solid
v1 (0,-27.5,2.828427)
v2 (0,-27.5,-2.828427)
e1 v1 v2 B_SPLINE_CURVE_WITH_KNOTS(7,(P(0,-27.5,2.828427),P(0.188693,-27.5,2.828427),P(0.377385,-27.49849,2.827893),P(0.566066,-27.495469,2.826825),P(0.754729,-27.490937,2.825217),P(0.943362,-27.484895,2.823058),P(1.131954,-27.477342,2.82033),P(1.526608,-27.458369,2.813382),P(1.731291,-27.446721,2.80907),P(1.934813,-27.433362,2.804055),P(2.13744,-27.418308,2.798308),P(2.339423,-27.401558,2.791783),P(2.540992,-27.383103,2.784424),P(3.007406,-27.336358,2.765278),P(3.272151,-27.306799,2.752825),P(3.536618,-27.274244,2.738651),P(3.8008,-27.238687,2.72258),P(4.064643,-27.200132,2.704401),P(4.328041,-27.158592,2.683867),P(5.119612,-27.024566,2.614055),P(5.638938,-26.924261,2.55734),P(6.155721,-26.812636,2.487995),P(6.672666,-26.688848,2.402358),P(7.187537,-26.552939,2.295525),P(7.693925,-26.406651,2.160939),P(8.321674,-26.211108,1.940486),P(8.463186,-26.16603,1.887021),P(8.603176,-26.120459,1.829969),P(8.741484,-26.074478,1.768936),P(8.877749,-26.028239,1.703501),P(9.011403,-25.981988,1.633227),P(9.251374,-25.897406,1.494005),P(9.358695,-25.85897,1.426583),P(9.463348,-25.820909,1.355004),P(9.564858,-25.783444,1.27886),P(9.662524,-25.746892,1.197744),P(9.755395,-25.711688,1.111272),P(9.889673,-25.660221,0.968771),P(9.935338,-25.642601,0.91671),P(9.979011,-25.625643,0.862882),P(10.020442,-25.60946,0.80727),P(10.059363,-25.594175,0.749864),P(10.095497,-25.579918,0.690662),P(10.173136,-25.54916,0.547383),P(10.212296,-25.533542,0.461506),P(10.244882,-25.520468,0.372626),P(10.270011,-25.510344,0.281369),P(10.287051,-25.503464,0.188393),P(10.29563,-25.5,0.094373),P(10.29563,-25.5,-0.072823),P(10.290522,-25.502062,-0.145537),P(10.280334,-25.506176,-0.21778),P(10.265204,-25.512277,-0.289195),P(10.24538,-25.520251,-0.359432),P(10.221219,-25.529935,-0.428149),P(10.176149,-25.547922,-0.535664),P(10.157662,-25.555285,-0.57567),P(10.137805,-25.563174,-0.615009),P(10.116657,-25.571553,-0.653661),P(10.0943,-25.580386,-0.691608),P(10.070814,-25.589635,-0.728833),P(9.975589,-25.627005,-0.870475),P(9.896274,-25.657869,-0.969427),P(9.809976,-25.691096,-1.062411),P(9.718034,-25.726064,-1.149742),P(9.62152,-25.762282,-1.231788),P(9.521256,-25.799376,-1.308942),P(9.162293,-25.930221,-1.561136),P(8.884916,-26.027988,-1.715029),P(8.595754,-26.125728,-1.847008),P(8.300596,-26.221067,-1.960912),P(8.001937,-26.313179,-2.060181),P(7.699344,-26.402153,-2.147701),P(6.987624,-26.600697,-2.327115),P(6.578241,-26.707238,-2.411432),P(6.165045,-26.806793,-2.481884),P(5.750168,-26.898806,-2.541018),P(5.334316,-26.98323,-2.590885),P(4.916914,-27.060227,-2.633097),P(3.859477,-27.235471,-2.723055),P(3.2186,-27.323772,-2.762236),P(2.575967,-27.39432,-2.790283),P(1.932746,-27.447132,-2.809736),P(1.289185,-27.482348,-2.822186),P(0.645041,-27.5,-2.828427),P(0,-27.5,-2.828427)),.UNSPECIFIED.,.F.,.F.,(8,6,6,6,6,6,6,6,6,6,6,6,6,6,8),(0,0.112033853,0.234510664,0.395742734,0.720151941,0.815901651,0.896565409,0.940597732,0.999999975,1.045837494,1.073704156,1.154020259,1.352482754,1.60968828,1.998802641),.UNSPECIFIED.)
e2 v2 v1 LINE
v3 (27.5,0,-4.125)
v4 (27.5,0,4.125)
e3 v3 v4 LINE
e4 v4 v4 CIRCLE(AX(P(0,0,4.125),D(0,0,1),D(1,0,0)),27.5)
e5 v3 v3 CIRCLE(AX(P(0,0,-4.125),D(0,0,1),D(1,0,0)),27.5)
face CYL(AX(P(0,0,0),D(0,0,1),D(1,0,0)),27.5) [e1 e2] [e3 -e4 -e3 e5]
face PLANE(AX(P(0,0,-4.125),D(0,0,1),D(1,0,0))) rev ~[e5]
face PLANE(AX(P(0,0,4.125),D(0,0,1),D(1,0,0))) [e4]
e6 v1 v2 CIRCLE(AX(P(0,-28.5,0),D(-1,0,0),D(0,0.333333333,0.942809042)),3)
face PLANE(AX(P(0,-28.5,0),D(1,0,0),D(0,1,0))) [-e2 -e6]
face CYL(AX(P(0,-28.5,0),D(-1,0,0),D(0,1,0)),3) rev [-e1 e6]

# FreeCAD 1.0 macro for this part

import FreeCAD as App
import Part
import Sketcher

V = App.Vector
Q = App.Units.Quantity

doc = App.newDocument("Part")
params = doc.addObject("Spreadsheet::Sheet", "Params")
for row, (alias, value) in enumerate([
    ("sketch1_diameter", "55 mm"),
    ("pad1_length", "8.25 mm"),
    ("sketch2_diameter", "6 mm"),
    ("pocket1_length", "25 mm"),
], start=1):
    params.set(f"A{row}", alias)
    params.set(f"B{row}", "=" + value)
    params.setAlias(f"B{row}", alias)

body = doc.addObject("PartDesign::Body", "Body")

# Sketch on XY plane
sketch1 = doc.addObject("Sketcher::SketchObject", "Sketch")
body.addObject(sketch1)
sketch1.AttachmentSupport = (doc.XY_Plane, [""])
sketch1.MapMode = "FlatFace"
sketch1.addGeometry(Part.Circle(V(0, 0, 0), V(0, 0, 1), 28), False)
sketch1.addConstraint([
    Sketcher.Constraint("Coincident", 0, 3, -1, 1),
    Sketcher.Constraint("Diameter", 0, Q("55 mm")),
])
sketch1.setExpression("Constraints[1]", "Params.sketch1_diameter")
pad1 = doc.addObject("PartDesign::Pad", "Pad")
body.addObject(pad1)
pad1.Profile = sketch1
pad1.setExpression("Length", "Params.pad1_length")
pad1.Midplane = True

# Sketch on YZ plane
sketch2 = doc.addObject("Sketcher::SketchObject", "Sketch001")
body.addObject(sketch2)
sketch2.AttachmentSupport = (doc.YZ_Plane, [""])
sketch2.MapMode = "FlatFace"
sketch2.addGeometry(Part.Circle(V(-28.5, 0, 0), V(0, 0, 1), 3), False)
sketch2.addConstraint([
    Sketcher.Constraint("PointOnObject", 0, 3, -1),
    Sketcher.Constraint("Diameter", 0, Q("6 mm")),
    Sketcher.Constraint("DistanceX", 0, 3, -1, 1, Q("28.5 mm")),
])
sketch2.setExpression("Constraints[1]", "Params.sketch2_diameter")
pocket1 = doc.addObject("PartDesign::Pocket", "Pocket")
body.addObject(pocket1)
pocket1.Profile = sketch2
pocket1.setExpression("Length", "Params.pocket1_length")
pocket1.Reversed = True

doc.recompute()
